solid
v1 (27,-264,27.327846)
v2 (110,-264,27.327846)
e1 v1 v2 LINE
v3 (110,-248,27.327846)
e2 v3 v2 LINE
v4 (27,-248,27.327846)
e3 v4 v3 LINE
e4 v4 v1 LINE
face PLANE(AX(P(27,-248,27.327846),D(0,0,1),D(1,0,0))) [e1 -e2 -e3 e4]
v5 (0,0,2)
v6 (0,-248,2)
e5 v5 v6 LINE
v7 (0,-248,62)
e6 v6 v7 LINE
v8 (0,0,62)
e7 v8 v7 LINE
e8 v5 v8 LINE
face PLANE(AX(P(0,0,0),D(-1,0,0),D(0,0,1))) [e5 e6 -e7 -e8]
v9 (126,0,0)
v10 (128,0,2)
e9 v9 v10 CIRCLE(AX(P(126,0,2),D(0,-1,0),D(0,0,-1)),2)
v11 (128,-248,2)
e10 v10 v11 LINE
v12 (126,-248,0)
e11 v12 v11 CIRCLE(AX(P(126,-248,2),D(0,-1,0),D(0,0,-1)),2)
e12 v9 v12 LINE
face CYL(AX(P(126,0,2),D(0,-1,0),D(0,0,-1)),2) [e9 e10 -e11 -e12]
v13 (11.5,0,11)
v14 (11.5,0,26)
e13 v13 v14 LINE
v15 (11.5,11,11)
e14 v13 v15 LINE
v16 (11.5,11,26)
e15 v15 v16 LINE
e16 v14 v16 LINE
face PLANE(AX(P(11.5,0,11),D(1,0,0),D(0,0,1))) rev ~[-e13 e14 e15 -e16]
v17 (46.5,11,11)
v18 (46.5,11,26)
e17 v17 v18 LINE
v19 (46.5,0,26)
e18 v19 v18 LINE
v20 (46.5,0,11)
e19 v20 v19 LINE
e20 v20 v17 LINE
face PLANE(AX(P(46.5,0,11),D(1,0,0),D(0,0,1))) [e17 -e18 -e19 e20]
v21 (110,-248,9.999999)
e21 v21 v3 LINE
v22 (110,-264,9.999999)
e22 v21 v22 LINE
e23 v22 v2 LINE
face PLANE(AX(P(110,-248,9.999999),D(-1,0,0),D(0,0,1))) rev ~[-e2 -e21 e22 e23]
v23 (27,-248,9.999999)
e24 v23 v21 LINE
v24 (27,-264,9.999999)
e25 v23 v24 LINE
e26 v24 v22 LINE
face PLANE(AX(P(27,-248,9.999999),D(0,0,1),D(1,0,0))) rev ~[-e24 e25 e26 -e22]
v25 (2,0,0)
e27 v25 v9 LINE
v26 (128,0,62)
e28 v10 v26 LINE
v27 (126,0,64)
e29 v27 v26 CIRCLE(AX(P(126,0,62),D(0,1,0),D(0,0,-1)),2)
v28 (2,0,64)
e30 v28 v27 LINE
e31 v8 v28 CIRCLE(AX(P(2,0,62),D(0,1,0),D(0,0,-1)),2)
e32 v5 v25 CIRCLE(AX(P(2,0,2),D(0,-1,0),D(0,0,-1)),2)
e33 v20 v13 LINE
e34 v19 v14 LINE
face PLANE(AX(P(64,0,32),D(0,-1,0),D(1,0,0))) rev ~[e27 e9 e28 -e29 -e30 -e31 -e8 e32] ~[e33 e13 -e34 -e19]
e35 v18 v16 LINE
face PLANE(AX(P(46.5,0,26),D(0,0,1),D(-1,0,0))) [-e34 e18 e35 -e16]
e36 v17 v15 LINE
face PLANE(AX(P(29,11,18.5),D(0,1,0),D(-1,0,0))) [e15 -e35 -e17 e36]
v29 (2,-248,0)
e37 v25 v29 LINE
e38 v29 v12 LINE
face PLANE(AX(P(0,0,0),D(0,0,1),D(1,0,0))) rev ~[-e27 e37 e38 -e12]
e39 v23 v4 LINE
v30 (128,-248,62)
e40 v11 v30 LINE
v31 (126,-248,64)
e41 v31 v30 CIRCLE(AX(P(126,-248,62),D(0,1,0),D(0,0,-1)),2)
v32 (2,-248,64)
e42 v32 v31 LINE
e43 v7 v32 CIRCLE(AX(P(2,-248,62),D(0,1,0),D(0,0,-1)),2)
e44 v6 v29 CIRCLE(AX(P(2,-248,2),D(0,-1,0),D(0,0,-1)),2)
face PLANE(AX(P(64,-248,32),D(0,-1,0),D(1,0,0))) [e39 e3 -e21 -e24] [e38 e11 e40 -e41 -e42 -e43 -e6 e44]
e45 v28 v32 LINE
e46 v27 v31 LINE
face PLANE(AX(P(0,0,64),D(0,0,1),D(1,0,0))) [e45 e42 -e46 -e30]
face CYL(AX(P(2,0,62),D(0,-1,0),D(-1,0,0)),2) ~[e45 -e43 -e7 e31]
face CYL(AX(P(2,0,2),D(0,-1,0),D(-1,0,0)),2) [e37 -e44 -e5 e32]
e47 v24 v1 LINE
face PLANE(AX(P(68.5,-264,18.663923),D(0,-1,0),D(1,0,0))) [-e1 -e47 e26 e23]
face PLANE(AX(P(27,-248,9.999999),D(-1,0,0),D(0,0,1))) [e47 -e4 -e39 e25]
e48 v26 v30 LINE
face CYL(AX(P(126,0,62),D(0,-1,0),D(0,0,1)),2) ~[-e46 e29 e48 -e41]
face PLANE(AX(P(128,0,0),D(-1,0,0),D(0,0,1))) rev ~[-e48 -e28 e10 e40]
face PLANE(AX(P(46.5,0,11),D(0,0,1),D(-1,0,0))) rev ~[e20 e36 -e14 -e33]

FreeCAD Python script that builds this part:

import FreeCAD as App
import Part
import Sketcher
Q = App.Units.Quantity


def edges_at(feature, points):
    """Names of the edges that pass closest to the given points."""
    edges = feature.Shape.Edges
    near = lambda p: min(range(len(edges)), key=lambda i: edges[i].distToShape(Part.Vertex(*p))[0])
    return sorted({f"Edge{near(p) + 1}" for p in points})

doc = App.newDocument("Part")
body = doc.addObject("PartDesign::Body", "Body")

# Sketch on XZ plane
sketch1 = body.newObject("Sketcher::SketchObject", "Sketch")
sketch1.AttachmentSupport = (doc.getObject("XZ_Plane"), [""])
sketch1.MapMode = "FlatFace"
sketch1.addGeometry([
    Part.LineSegment(App.Vector(0, 64, 0), App.Vector(0, 0, 0)),
    Part.LineSegment(App.Vector(0, 0, 0), App.Vector(128, 0, 0)),
    Part.LineSegment(App.Vector(128, 0, 0), App.Vector(128, 64, 0)),
    Part.LineSegment(App.Vector(128, 64, 0), App.Vector(0, 64, 0)),
], False)
sketch1.addConstraint([
    Sketcher.Constraint("Coincident", 0, 2, 1, 1),
    Sketcher.Constraint("Coincident", 1, 2, 2, 1),
    Sketcher.Constraint("Coincident", 2, 2, 3, 1),
    Sketcher.Constraint("Coincident", 3, 2, 0, 1),
    Sketcher.Constraint("Vertical", 0),
    Sketcher.Constraint("Horizontal", 1),
    Sketcher.Constraint("Vertical", 2),
    Sketcher.Constraint("Horizontal", 3),
    Sketcher.Constraint("Coincident", 0, 2, -1, 1),
    Sketcher.Constraint("DistanceX", 1, 1, 1, 2, Q("128 mm")),
    Sketcher.Constraint("DistanceY", 0, 2, 0, 1, Q("64 mm")),
])
pad1 = body.newObject("PartDesign::Pad", "Pad")
pad1.Profile = sketch1
pad1.Length = 248

# Sketch on XZ plane
sketch2 = body.newObject("Sketcher::SketchObject", "Sketch001")
sketch2.AttachmentSupport = (doc.getObject("XZ_Plane"), [""])
sketch2.MapMode = "FlatFace"
sketch2.AttachmentOffset = App.Placement(App.Vector(0, 0, 248), App.Rotation())
sketch2.addGeometry([
    Part.LineSegment(App.Vector(27, 27, 0), App.Vector(27, 10, 0)),
    Part.LineSegment(App.Vector(27, 10, 0), App.Vector(110, 10, 0)),
    Part.LineSegment(App.Vector(110, 10, 0), App.Vector(110, 27, 0)),
    Part.LineSegment(App.Vector(110, 27, 0), App.Vector(27, 27, 0)),
], False)
sketch2.addConstraint([
    Sketcher.Constraint("Coincident", 0, 2, 1, 1),
    Sketcher.Constraint("Coincident", 1, 2, 2, 1),
    Sketcher.Constraint("Coincident", 2, 2, 3, 1),
    Sketcher.Constraint("Coincident", 3, 2, 0, 1),
    Sketcher.Constraint("Vertical", 0),
    Sketcher.Constraint("Horizontal", 1),
    Sketcher.Constraint("Vertical", 2),
    Sketcher.Constraint("Horizontal", 3),
    Sketcher.Constraint("DistanceX", 1, 1, 1, 2, Q("83 mm")),
    Sketcher.Constraint("DistanceX", -1, 1, 0, 2, Q("27 mm")),
    Sketcher.Constraint("DistanceY", -1, 1, 0, 2, Q("9.999999 mm")),
    Sketcher.Constraint("DistanceY", 0, 2, 0, 1, Q("17.327847 mm")),
])
pad2 = body.newObject("PartDesign::Pad", "Pad001")
pad2.Profile = sketch2
pad2.Length = 16

# Sketch on XZ plane
sketch3 = body.newObject("Sketcher::SketchObject", "Sketch002")
sketch3.AttachmentSupport = (doc.getObject("XZ_Plane"), [""])
sketch3.MapMode = "FlatFace"
sketch3.addGeometry([
    Part.LineSegment(App.Vector(46, 26, 0), App.Vector(46, 11, 0)),
    Part.LineSegment(App.Vector(46, 11, 0), App.Vector(12, 11, 0)),
    Part.LineSegment(App.Vector(12, 11, 0), App.Vector(12, 26, 0)),
    Part.LineSegment(App.Vector(12, 26, 0), App.Vector(46, 26, 0)),
], False)
sketch3.addConstraint([
    Sketcher.Constraint("Coincident", 0, 2, 1, 1),
    Sketcher.Constraint("Coincident", 1, 2, 2, 1),
    Sketcher.Constraint("Coincident", 2, 2, 3, 1),
    Sketcher.Constraint("Coincident", 3, 2, 0, 1),
    Sketcher.Constraint("Vertical", 0),
    Sketcher.Constraint("Horizontal", 1),
    Sketcher.Constraint("Vertical", 2),
    Sketcher.Constraint("Horizontal", 3),
    Sketcher.Constraint("DistanceX", 1, 2, 1, 1, Q("35 mm")),
    Sketcher.Constraint("DistanceY", 0, 2, 0, 1, Q("15 mm")),
    Sketcher.Constraint("DistanceY", -1, 1, 0, 2, Q("11 mm")),
    Sketcher.Constraint("DistanceX", -1, 1, 0, 2, Q("46.5 mm")),
])
pad3 = body.newObject("PartDesign::Pad", "Pad002")
pad3.Profile = sketch3
pad3.Length = 11
pad3.Reversed = True
doc.recompute()

fillet = body.newObject("PartDesign::Fillet", "Fillet")
fillet.Base = (pad3, edges_at(pad3, [
    (128, -124, 64),
    (128, -124, 0),
    (0, -124, 64),
    (0, -124, 0),
]))
fillet.Radius = 2

doc.recompute()
